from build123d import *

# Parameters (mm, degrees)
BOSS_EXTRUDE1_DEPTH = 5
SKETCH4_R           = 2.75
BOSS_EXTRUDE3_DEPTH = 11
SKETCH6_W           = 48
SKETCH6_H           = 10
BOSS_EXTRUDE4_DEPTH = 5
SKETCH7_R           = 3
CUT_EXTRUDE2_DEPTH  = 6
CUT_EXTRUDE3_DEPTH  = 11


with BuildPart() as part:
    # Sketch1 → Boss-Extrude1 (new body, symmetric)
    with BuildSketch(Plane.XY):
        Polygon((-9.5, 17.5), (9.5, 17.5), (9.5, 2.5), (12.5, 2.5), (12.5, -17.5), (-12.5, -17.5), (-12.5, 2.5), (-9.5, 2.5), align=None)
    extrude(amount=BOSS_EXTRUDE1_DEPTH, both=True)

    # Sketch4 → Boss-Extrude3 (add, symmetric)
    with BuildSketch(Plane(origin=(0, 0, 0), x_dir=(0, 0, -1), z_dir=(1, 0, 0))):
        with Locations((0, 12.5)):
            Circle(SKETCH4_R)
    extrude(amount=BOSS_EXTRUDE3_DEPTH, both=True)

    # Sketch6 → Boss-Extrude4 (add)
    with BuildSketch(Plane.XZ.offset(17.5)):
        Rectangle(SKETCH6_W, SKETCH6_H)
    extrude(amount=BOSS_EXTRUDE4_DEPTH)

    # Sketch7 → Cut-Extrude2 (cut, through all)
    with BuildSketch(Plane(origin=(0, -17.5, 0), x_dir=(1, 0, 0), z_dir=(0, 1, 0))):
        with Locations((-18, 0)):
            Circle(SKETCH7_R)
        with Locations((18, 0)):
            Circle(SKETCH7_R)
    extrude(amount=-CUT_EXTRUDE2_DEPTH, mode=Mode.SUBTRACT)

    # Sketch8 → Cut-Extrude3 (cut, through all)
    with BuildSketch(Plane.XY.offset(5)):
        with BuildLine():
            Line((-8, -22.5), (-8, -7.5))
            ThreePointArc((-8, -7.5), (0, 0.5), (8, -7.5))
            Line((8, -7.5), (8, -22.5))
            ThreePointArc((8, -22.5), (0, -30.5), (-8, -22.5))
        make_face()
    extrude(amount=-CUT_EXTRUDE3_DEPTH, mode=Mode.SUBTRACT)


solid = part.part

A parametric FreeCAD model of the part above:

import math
import FreeCAD as App
import Part
import Sketcher

doc = App.newDocument("Part")
body = doc.addObject("PartDesign::Body", "Body")

sketch1 = doc.addObject("Sketcher::SketchObject", "Sketch")
body.addObject(sketch1)
sketch1.AttachmentSupport = (doc.XY_Plane, [""])
sketch1.MapMode = "FlatFace"
sketch1.addGeometry(Part.LineSegment(App.Vector(9.5, 17.5, 0), App.Vector(-9.5, 17.5, 0)), False)
sketch1.addGeometry(Part.LineSegment(App.Vector(-9.5, 17.5, 0), App.Vector(-9.5, 2.5, 0)), False)
sketch1.addGeometry(Part.LineSegment(App.Vector(-9.5, 2.5, 0), App.Vector(-12.5, 2.5, 0)), False)
sketch1.addGeometry(Part.LineSegment(App.Vector(-12.5, 2.5, 0), App.Vector(-12.5, -17.5, 0)), False)
sketch1.addGeometry(Part.LineSegment(App.Vector(-12.5, -17.5, 0), App.Vector(12.5, -17.5, 0)), False)
sketch1.addGeometry(Part.LineSegment(App.Vector(12.5, -17.5, 0), App.Vector(12.5, 2.5, 0)), False)
sketch1.addGeometry(Part.LineSegment(App.Vector(12.5, 2.5, 0), App.Vector(9.5, 2.5, 0)), False)
sketch1.addGeometry(Part.LineSegment(App.Vector(9.5, 2.5, 0), App.Vector(9.5, 17.5, 0)), False)
sketch1.addConstraint(Sketcher.Constraint("Coincident", 0, 2, 1, 1))
sketch1.addConstraint(Sketcher.Constraint("Coincident", 1, 2, 2, 1))
sketch1.addConstraint(Sketcher.Constraint("Coincident", 2, 2, 3, 1))
sketch1.addConstraint(Sketcher.Constraint("Coincident", 3, 2, 4, 1))
sketch1.addConstraint(Sketcher.Constraint("Coincident", 4, 2, 5, 1))
sketch1.addConstraint(Sketcher.Constraint("Coincident", 5, 2, 6, 1))
sketch1.addConstraint(Sketcher.Constraint("Coincident", 6, 2, 7, 1))
sketch1.addConstraint(Sketcher.Constraint("Coincident", 7, 2, 0, 1))
sketch1.addConstraint(Sketcher.Constraint("Horizontal", 0))
sketch1.addConstraint(Sketcher.Constraint("Vertical", 1))
sketch1.addConstraint(Sketcher.Constraint("Horizontal", 2))
sketch1.addConstraint(Sketcher.Constraint("Vertical", 3))
sketch1.addConstraint(Sketcher.Constraint("Horizontal", 4))
sketch1.addConstraint(Sketcher.Constraint("Vertical", 5))
sketch1.addConstraint(Sketcher.Constraint("Horizontal", 6))
sketch1.addConstraint(Sketcher.Constraint("Vertical", 7))
sketch1.addConstraint(Sketcher.Constraint("Symmetric", 2, 2, 5, 2, -2))
sketch1.addConstraint(Sketcher.Constraint("Equal", 2, 6))
sketch1.addConstraint(Sketcher.Constraint("DistanceX", 0, 2, 0, 1, 19.0))
sketch1.addConstraint(Sketcher.Constraint("DistanceX", 2, 2, 2, 1, 3.0))
sketch1.addConstraint(Sketcher.Constraint("DistanceY", 1, 2, 1, 1, 15.0))
sketch1.addConstraint(Sketcher.Constraint("DistanceY", 3, 2, 3, 1, 20.0))
sketch1.addConstraint(Sketcher.Constraint("DistanceY", -1, 1, 0, 2, 17.5))
pad1 = doc.addObject("PartDesign::Pad", "Pad")
body.addObject(pad1)
pad1.Profile = sketch1
pad1.Length = 10
pad1.Midplane = True

sketch2 = doc.addObject("Sketcher::SketchObject", "Sketch001")
body.addObject(sketch2)
sketch2.AttachmentSupport = (doc.YZ_Plane, [""])
sketch2.MapMode = "FlatFace"
sketch2.addGeometry(Part.Circle(App.Vector(12.5, 0, 0), App.Vector(0, 0, 1), 2.8), False)
sketch2.addConstraint(Sketcher.Constraint("PointOnObject", 0, 3, -1))
sketch2.addConstraint(Sketcher.Constraint("Diameter", 0, 5.5))
sketch2.addConstraint(Sketcher.Constraint("DistanceX", -1, 1, 0, 3, 12.5))
pad2 = doc.addObject("PartDesign::Pad", "Pad001")
body.addObject(pad2)
pad2.Profile = sketch2
pad2.Length = 22
pad2.Midplane = True

sketch3 = doc.addObject("Sketcher::SketchObject", "Sketch002")
body.addObject(sketch3)
sketch3.AttachmentSupport = (doc.XZ_Plane, [""])
sketch3.MapMode = "FlatFace"
sketch3.AttachmentOffset = App.Placement(App.Vector(0, 0, 17.5), App.Rotation())
sketch3.addGeometry(Part.LineSegment(App.Vector(-24, 5, 0), App.Vector(-24, -5, 0)), False)
sketch3.addGeometry(Part.LineSegment(App.Vector(-24, -5, 0), App.Vector(24, -5, 0)), False)
sketch3.addGeometry(Part.LineSegment(App.Vector(24, -5, 0), App.Vector(24, 5, 0)), False)
sketch3.addGeometry(Part.LineSegment(App.Vector(24, 5, 0), App.Vector(-24, 5, 0)), False)
sketch3.addConstraint(Sketcher.Constraint("Coincident", 0, 2, 1, 1))
sketch3.addConstraint(Sketcher.Constraint("Coincident", 1, 2, 2, 1))
sketch3.addConstraint(Sketcher.Constraint("Coincident", 2, 2, 3, 1))
sketch3.addConstraint(Sketcher.Constraint("Coincident", 3, 2, 0, 1))
sketch3.addConstraint(Sketcher.Constraint("Vertical", 0))
sketch3.addConstraint(Sketcher.Constraint("Horizontal", 1))
sketch3.addConstraint(Sketcher.Constraint("Vertical", 2))
sketch3.addConstraint(Sketcher.Constraint("Horizontal", 3))
sketch3.addConstraint(Sketcher.Constraint("Symmetric", 0, 2, 2, 2, -1, 1))
sketch3.addConstraint(Sketcher.Constraint("DistanceX", 1, 1, 1, 2, 48.0))
sketch3.addConstraint(Sketcher.Constraint("DistanceY", 0, 2, 0, 1, 10.0))
pad3 = doc.addObject("PartDesign::Pad", "Pad002")
body.addObject(pad3)
pad3.Profile = sketch3
pad3.Length = 5

sketch4 = doc.addObject("Sketcher::SketchObject", "Sketch003")
body.addObject(sketch4)
sketch4.AttachmentSupport = (doc.XZ_Plane, [""])
sketch4.MapMode = "FlatFace"
sketch4.AttachmentOffset = App.Placement(App.Vector(0, 0, 17.5), App.Rotation())
sketch4.addGeometry(Part.Circle(App.Vector(-18, 0, 0), App.Vector(0, 0, 1), 3), False)
sketch4.addGeometry(Part.Circle(App.Vector(18, 0, 0), App.Vector(0, 0, 1), 3), False)
sketch4.addConstraint(Sketcher.Constraint("Equal", 0, 1))
sketch4.addConstraint(Sketcher.Constraint("Symmetric", 0, 3, 1, 3, -1, 1))
sketch4.addConstraint(Sketcher.Constraint("PointOnObject", 0, 3, -1))
sketch4.addConstraint(Sketcher.Constraint("Diameter", 0, 6.0))
sketch4.addConstraint(Sketcher.Constraint("DistanceX", 0, 3, -1, 1, 18.0))
pocket1 = doc.addObject("PartDesign::Pocket", "Pocket")
body.addObject(pocket1)
pocket1.Profile = sketch4
pocket1.Type = "ThroughAll"
pocket1.Reversed = True

sketch5 = doc.addObject("Sketcher::SketchObject", "Sketch004")
body.addObject(sketch5)
sketch5.AttachmentSupport = (doc.XY_Plane, [""])
sketch5.MapMode = "FlatFace"
sketch5.AttachmentOffset = App.Placement(App.Vector(0, 0, 5), App.Rotation())
sketch5.addGeometry(Part.LineSegment(App.Vector(-8, -8, 0), App.Vector(-8, -22, 0)), False)
sketch5.addGeometry(Part.ArcOfCircle(Part.Circle(App.Vector(0, -22, 0), App.Vector(0, 0, 1), 8), math.radians(180), math.radians(360)), False)
sketch5.addGeometry(Part.LineSegment(App.Vector(8, -22, 0), App.Vector(8, -8, 0)), False)
sketch5.addGeometry(Part.ArcOfCircle(Part.Circle(App.Vector(0, -8, 0), App.Vector(0, 0, 1), 8), math.radians(0), math.radians(180)), False)
sketch5.addConstraint(Sketcher.Constraint("Tangent", 0, 2, 1, 1))
sketch5.addConstraint(Sketcher.Constraint("Tangent", 1, 2, 2, 1))
sketch5.addConstraint(Sketcher.Constraint("Tangent", 2, 2, 3, 1))
sketch5.addConstraint(Sketcher.Constraint("Tangent", 3, 2, 0, 1))
sketch5.addConstraint(Sketcher.Constraint("Vertical", 0))
sketch5.addConstraint(Sketcher.Constraint("Vertical", 2))
sketch5.addConstraint(Sketcher.Constraint("PointOnObject", 1, 3, -2))
sketch5.addConstraint(Sketcher.Constraint("Radius", 1, 8.0))
sketch5.addConstraint(Sketcher.Constraint("DistanceY", 0, 2, 0, 1, 15.0))
sketch5.addConstraint(Sketcher.Constraint("DistanceY", 1, 3, -1, 1, 22.5))
pocket2 = doc.addObject("PartDesign::Pocket", "Pocket001")
body.addObject(pocket2)
pocket2.Profile = sketch5
pocket2.Type = "ThroughAll"

doc.recompute()
